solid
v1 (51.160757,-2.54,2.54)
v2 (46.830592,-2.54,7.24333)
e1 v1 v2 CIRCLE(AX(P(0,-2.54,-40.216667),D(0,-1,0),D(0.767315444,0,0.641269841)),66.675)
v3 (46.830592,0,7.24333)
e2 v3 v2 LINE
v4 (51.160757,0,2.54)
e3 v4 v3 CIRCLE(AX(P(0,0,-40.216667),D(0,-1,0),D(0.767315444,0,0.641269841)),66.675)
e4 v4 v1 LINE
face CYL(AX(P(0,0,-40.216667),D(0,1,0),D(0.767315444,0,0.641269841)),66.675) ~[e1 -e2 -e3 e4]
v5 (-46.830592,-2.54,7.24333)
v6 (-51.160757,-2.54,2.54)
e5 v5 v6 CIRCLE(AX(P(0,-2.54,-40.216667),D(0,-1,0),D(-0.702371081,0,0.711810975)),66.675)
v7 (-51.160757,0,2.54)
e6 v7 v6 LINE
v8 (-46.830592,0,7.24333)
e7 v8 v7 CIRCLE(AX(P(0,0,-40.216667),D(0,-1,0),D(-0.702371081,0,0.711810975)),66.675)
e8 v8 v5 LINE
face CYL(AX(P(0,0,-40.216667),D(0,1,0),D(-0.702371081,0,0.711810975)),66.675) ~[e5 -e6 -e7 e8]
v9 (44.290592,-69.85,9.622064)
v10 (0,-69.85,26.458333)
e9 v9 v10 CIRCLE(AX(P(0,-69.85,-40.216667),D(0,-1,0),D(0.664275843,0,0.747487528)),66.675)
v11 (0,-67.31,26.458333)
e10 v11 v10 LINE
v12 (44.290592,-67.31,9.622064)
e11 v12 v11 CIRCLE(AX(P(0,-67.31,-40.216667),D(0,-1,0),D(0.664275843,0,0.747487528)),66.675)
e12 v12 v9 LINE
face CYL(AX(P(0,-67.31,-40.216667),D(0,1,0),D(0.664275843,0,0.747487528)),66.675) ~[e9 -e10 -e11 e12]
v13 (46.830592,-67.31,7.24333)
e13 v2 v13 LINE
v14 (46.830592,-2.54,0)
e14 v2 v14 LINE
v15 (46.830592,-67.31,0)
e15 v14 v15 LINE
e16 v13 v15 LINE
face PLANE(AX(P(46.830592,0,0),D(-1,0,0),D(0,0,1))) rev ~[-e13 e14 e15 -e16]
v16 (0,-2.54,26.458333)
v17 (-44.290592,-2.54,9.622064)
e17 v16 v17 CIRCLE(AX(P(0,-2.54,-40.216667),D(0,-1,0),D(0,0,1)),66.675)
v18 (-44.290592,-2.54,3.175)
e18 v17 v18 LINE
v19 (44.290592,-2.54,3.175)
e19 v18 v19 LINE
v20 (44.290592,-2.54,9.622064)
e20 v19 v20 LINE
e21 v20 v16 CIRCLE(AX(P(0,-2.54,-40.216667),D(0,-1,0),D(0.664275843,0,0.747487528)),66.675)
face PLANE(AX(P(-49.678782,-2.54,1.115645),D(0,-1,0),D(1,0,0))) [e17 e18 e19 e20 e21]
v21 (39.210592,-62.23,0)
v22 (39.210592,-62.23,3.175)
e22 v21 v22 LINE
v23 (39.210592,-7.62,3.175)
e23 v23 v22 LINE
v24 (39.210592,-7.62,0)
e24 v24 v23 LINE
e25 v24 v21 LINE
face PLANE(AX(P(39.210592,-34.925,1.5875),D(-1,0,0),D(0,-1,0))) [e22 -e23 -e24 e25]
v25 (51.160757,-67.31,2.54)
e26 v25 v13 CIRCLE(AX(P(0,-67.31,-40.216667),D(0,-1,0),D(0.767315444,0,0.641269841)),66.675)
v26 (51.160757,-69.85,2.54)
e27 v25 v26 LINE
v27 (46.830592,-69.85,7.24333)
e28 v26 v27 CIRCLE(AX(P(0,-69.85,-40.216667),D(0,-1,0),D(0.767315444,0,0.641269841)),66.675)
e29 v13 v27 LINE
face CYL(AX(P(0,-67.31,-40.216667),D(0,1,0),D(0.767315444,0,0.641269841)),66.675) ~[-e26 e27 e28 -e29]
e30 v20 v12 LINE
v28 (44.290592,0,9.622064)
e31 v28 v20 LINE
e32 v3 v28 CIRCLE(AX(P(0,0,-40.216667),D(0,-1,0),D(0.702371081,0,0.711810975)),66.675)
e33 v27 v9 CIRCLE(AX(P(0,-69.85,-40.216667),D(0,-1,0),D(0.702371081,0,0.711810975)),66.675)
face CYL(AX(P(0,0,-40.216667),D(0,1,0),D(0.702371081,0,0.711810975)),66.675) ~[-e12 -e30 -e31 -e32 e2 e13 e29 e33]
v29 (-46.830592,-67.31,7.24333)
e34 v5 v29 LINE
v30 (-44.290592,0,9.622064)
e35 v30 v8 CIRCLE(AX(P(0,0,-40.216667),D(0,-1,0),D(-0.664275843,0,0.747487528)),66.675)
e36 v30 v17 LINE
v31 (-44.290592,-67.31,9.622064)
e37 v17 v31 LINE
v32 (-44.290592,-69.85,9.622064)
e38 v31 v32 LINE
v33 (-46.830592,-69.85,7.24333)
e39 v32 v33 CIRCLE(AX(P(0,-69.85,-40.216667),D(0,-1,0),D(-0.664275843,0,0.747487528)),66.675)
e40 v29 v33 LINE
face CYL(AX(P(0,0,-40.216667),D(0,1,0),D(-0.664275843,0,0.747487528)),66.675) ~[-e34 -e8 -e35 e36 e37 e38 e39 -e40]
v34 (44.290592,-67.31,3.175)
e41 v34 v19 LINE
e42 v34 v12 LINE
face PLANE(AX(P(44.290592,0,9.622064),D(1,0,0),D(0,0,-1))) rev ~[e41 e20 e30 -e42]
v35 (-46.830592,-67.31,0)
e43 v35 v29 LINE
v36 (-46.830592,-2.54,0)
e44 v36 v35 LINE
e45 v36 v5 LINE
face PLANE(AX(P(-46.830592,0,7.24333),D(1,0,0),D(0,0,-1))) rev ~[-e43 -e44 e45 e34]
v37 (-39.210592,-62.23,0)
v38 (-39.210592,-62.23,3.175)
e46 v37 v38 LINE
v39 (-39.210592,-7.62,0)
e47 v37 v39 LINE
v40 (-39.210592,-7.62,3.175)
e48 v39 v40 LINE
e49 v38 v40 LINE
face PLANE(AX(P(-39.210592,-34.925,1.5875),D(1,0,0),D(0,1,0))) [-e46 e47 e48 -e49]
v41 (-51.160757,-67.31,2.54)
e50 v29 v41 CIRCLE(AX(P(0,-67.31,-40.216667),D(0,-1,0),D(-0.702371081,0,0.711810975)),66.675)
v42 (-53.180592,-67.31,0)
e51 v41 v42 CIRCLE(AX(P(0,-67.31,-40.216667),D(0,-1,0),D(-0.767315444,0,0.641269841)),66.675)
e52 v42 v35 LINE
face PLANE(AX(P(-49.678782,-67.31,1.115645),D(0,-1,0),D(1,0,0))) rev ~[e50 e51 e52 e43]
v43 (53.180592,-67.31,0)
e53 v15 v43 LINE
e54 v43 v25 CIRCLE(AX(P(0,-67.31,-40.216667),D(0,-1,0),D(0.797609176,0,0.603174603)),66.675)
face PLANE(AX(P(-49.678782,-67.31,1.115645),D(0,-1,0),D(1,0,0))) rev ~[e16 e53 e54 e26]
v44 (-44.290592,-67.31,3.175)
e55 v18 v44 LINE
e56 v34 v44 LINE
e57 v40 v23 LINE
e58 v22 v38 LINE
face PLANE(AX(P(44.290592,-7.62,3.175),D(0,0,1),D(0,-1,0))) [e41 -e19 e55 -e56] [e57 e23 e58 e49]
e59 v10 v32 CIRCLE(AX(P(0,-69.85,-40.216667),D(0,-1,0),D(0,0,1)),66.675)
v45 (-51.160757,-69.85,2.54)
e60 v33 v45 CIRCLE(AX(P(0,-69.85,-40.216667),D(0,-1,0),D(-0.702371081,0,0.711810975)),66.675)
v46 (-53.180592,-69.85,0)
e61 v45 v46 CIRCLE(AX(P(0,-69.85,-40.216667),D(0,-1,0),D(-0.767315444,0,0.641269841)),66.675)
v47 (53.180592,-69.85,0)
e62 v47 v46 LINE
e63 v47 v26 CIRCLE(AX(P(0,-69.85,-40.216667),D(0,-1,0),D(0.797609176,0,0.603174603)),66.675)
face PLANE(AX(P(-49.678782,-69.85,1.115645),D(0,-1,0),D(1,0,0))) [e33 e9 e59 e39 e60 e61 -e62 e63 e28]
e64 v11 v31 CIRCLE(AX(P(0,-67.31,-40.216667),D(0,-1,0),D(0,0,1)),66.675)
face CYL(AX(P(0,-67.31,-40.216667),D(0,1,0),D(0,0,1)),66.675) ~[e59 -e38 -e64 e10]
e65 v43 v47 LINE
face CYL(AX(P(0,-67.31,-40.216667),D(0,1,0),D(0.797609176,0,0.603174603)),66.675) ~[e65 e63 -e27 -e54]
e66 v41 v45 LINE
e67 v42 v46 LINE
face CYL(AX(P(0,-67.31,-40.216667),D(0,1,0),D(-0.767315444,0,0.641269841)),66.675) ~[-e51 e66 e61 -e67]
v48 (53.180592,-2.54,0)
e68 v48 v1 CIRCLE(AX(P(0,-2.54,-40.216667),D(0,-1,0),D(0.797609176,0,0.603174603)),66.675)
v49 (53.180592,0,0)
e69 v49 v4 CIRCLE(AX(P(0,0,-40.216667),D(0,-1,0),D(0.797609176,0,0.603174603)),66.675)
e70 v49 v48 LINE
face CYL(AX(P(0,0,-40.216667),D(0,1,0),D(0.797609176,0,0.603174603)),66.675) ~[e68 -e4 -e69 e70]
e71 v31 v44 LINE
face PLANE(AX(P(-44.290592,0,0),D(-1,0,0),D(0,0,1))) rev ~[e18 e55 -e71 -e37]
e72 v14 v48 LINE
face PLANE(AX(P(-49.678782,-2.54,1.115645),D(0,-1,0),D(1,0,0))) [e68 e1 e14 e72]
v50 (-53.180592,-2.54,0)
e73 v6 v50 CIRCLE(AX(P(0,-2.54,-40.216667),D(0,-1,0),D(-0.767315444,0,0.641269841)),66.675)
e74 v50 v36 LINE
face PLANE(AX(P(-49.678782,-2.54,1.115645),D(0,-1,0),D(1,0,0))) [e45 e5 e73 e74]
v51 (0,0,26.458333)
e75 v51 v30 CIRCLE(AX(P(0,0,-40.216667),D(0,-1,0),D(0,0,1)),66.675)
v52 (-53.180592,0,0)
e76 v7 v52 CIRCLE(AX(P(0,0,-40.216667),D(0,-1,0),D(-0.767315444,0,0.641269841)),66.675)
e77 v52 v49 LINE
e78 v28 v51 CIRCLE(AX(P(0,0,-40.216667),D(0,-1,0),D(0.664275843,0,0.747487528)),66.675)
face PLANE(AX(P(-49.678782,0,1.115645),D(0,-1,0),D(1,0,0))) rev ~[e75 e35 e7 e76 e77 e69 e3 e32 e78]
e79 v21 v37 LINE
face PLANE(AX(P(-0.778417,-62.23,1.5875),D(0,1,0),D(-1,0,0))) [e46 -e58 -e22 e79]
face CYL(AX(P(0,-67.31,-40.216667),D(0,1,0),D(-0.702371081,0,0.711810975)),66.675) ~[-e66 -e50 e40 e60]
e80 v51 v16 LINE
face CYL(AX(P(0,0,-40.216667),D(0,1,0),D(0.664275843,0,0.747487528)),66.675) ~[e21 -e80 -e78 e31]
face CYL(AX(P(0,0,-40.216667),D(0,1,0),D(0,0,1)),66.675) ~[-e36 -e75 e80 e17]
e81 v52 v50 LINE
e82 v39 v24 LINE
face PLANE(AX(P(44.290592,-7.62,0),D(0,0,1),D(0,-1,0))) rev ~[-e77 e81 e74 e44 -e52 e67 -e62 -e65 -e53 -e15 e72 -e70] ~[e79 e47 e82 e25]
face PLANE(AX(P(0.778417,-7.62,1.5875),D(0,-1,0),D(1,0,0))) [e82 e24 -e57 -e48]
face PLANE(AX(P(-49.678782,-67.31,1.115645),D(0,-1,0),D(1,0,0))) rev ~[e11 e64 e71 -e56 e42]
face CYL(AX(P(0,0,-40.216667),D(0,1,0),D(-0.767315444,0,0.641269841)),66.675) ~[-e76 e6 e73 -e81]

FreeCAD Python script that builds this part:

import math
import FreeCAD as App
import Part
import Sketcher
from FreeCAD import Vector
Q = App.Units.Quantity

doc = App.newDocument("Part")
params = doc.addObject("Spreadsheet::Sheet", "Params")
for row, (alias, value) in enumerate([
    ("sketch1_radius", "2.625 in"),
    ("pad1_length", "0.1 in"),
    ("sketch2_radius", "2.625 in"),
    ("pad2_length", "0.1 in"),
    ("sketch3_width", "0.1 in"),
    ("sketch3_radius", "2.625 in"),
    ("pad3_length", "2.75 in"),
    ("sketch4_height", "0.125 in"),
    ("pad4_length", "0.2 in"),
    ("sketch5_height", "0.125 in"),
    ("pad5_length", "0.2 in"),
    ("sketch6_width", "2.15 in"),
    ("sketch6_height", "0.125 in"),
    ("pad6_length", "0.2 in"),
    ("sketch7_width", "2.15 in"),
    ("sketch7_height", "0.125 in"),
    ("pad7_length", "0.2 in"),
], start=1):
    params.set(f"A{row}", alias)
    params.set(f"B{row}", "=" + value)
    params.setAlias(f"B{row}", alias)

body = doc.addObject("PartDesign::Body", "Body")

# Sketch on XZ plane
sketch1 = body.newObject("Sketcher::SketchObject", "Sketch")
sketch1.AttachmentSupport = (doc.getObject("XZ_Plane"), [""])
sketch1.MapMode = "FlatFace"
sketch1.addGeometry([
    Part.LineSegment(Vector(-53.180592, 0, 0), Vector(53.180592, 0, 0)),  # 0
    Part.ArcOfCircle(Part.Circle(Vector(0, -40.216667, 0), Vector(0, 0, 1), 66.675), math.radians(37.097602), math.radians(39.886574)),  # 1
    Part.ArcOfCircle(Part.Circle(Vector(0, -40.216667, 0), Vector(0, 0, 1), 66.675), math.radians(39.886574), math.radians(45.382453)),  # 2
    Part.ArcOfCircle(Part.Circle(Vector(0, -40.216667, 0), Vector(0, 0, 1), 66.675), math.radians(45.382453), math.radians(48.373206)),  # 3
    Part.ArcOfCircle(Part.Circle(Vector(0, -40.216667, 0), Vector(0, 0, 1), 66.675), math.radians(48.373206), math.radians(90)),  # 4
    Part.ArcOfCircle(Part.Circle(Vector(0, -40.216667, 0), Vector(0, 0, 1), 66.675), math.radians(90), math.radians(131.626794)),  # 5
    Part.ArcOfCircle(Part.Circle(Vector(0, -40.216667, 0), Vector(0, 0, 1), 66.675), math.radians(131.626794), math.radians(134.617547)),  # 6
    Part.ArcOfCircle(Part.Circle(Vector(0, -40.216667, 0), Vector(0, 0, 1), 66.675), math.radians(134.617547), math.radians(140.113426)),  # 7
    Part.ArcOfCircle(Part.Circle(Vector(0, -40.216667, 0), Vector(0, 0, 1), 66.675), math.radians(140.113426), math.radians(142.902398)),  # 8
], False)
sketch1.addConstraint([
    Sketcher.Constraint("Coincident", 0, 2, 1, 1),
    Sketcher.Constraint("Tangent", 1, 2, 2, 1),
    Sketcher.Constraint("Tangent", 2, 2, 3, 1),
    Sketcher.Constraint("Tangent", 3, 2, 4, 1),
    Sketcher.Constraint("Tangent", 4, 2, 5, 1),
    Sketcher.Constraint("Tangent", 5, 2, 6, 1),
    Sketcher.Constraint("Tangent", 6, 2, 7, 1),
    Sketcher.Constraint("Tangent", 7, 2, 8, 1),
    Sketcher.Constraint("Coincident", 8, 2, 0, 1),
    Sketcher.Constraint("Horizontal", 0),
    Sketcher.Constraint("Coincident", 3, 3, 1, 3),
    Sketcher.Constraint("Coincident", 5, 3, 1, 3),
    Sketcher.Constraint("Coincident", 7, 3, 1, 3),
    Sketcher.Constraint("Equal", 7, 8),
    Sketcher.Constraint("Symmetric", 0, 2, 8, 2, -1, 1),
    Sketcher.Constraint("PointOnObject", 4, 2, -2),
    Sketcher.Constraint("Horizontal", 3, 2, 5, 2),
    Sketcher.Constraint("Horizontal", 2, 2, 6, 2),
    Sketcher.Constraint("Horizontal", 1, 2, 7, 2),
    Sketcher.Constraint("Radius", 1, Q("2.625 in")),
    Sketcher.Constraint("DistanceY", -1, 1, 1, 2, Q("0.1 in")),
    Sketcher.Constraint("DistanceX", 3, 2, 2, 2, Q("0.1 in")),
    Sketcher.Constraint("DistanceX", 2, 2, 0, 2, Q("0.25 in")),
    Sketcher.Constraint("DistanceX", 0, 1, 0, 2, 106.361184),
])
sketch1.setExpression("Constraints[19]", "Params.sketch1_radius")
pad1 = body.newObject("PartDesign::Pad", "Pad")
pad1.Profile = sketch1
pad1.setExpression("Length", "Params.pad1_length")
body2 = doc.addObject("PartDesign::Body", "Body001")

# Sketch on XZ plane
sketch2 = body2.newObject("Sketcher::SketchObject", "Sketch001")
sketch2.AttachmentSupport = (doc.getObject("XZ_Plane001"), [""])
sketch2.MapMode = "FlatFace"
sketch2.AttachmentOffset = App.Placement(Vector(0, 0, 2.65 * 25.4), App.Rotation())
sketch2.addGeometry([
    Part.LineSegment(Vector(-53.180592, 0, 0), Vector(53.180592, 0, 0)),  # 0
    Part.ArcOfCircle(Part.Circle(Vector(0, -40.216667, 0), Vector(0, 0, 1), 66.675), math.radians(37.097602), math.radians(39.886574)),  # 1
    Part.ArcOfCircle(Part.Circle(Vector(0, -40.216667, 0), Vector(0, 0, 1), 66.675), math.radians(39.886574), math.radians(45.382453)),  # 2
    Part.ArcOfCircle(Part.Circle(Vector(0, -40.216667, 0), Vector(0, 0, 1), 66.675), math.radians(45.382453), math.radians(48.373206)),  # 3
    Part.ArcOfCircle(Part.Circle(Vector(0, -40.216667, 0), Vector(0, 0, 1), 66.675), math.radians(48.373206), math.radians(90)),  # 4
    Part.ArcOfCircle(Part.Circle(Vector(0, -40.216667, 0), Vector(0, 0, 1), 66.675), math.radians(90), math.radians(131.626794)),  # 5
    Part.ArcOfCircle(Part.Circle(Vector(0, -40.216667, 0), Vector(0, 0, 1), 66.675), math.radians(131.626794), math.radians(134.617547)),  # 6
    Part.ArcOfCircle(Part.Circle(Vector(0, -40.216667, 0), Vector(0, 0, 1), 66.675), math.radians(134.617547), math.radians(140.113426)),  # 7
    Part.ArcOfCircle(Part.Circle(Vector(0, -40.216667, 0), Vector(0, 0, 1), 66.675), math.radians(140.113426), math.radians(142.902398)),  # 8
], False)
sketch2.addConstraint([
    Sketcher.Constraint("Coincident", 0, 2, 1, 1),
    Sketcher.Constraint("Tangent", 1, 2, 2, 1),
    Sketcher.Constraint("Tangent", 2, 2, 3, 1),
    Sketcher.Constraint("Tangent", 3, 2, 4, 1),
    Sketcher.Constraint("Tangent", 4, 2, 5, 1),
    Sketcher.Constraint("Tangent", 5, 2, 6, 1),
    Sketcher.Constraint("Tangent", 6, 2, 7, 1),
    Sketcher.Constraint("Tangent", 7, 2, 8, 1),
    Sketcher.Constraint("Coincident", 8, 2, 0, 1),
    Sketcher.Constraint("Horizontal", 0),
    Sketcher.Constraint("Coincident", 3, 3, 1, 3),
    Sketcher.Constraint("Coincident", 5, 3, 1, 3),
    Sketcher.Constraint("Coincident", 7, 3, 1, 3),
    Sketcher.Constraint("Equal", 7, 8),
    Sketcher.Constraint("Symmetric", 0, 2, 8, 2, -1, 1),
    Sketcher.Constraint("PointOnObject", 4, 2, -2),
    Sketcher.Constraint("Horizontal", 3, 2, 5, 2),
    Sketcher.Constraint("Horizontal", 2, 2, 6, 2),
    Sketcher.Constraint("Horizontal", 1, 2, 7, 2),
    Sketcher.Constraint("Radius", 1, Q("2.625 in")),
    Sketcher.Constraint("DistanceY", -1, 1, 1, 2, Q("0.1 in")),
    Sketcher.Constraint("DistanceX", 3, 2, 2, 2, Q("0.1 in")),
    Sketcher.Constraint("DistanceX", 2, 2, 0, 2, Q("0.25 in")),
    Sketcher.Constraint("DistanceX", 0, 1, 0, 2, 106.361184),
])
sketch2.setExpression("Constraints[19]", "Params.sketch2_radius")
pad2 = body2.newObject("PartDesign::Pad", "Pad001")
pad2.Profile = sketch2
pad2.setExpression("Length", "Params.pad2_length")
body.AllowCompound = True
doc.recompute()

boolean = body.newObject("PartDesign::Boolean", "Boolean")
boolean.Type = "Fuse"
boolean.addObjects([body2])

# Sketch on XZ plane
sketch3 = body.newObject("Sketcher::SketchObject", "Sketch002")
sketch3.AttachmentSupport = (doc.getObject("XZ_Plane"), [""])
sketch3.MapMode = "FlatFace"
sketch3.addGeometry([
    Part.LineSegment(Vector(-46.830592, 0, 0), Vector(-44.290592, 0, 0)),  # 0
    Part.LineSegment(Vector(-44.290592, 0, 0), Vector(-44.290592, 9.622064, 0)),  # 1
    Part.ArcOfCircle(Part.Circle(Vector(0, -40.216667, 0), Vector(0, 0, 1), 66.675), math.radians(131.626794), math.radians(134.617547)),  # 2
    Part.LineSegment(Vector(-46.830592, 7.24333, 0), Vector(-46.830592, 0, 0)),  # 3
    Part.LineSegment(Vector(44.290592, 0, 0), Vector(46.830592, 0, 0)),  # 4
    Part.LineSegment(Vector(46.830592, 0, 0), Vector(46.830592, 7.24333, 0)),  # 5
    Part.ArcOfCircle(Part.Circle(Vector(0, -40.216667, 0), Vector(0, 0, 1), 66.675), math.radians(45.382453), math.radians(48.373206)),  # 6
    Part.LineSegment(Vector(44.290592, 9.622064, 0), Vector(44.290592, 0, 0)),  # 7
], False)
sketch3.addConstraint([
    Sketcher.Constraint("Coincident", 0, 2, 1, 1),
    Sketcher.Constraint("Coincident", 1, 2, 2, 1),
    Sketcher.Constraint("Coincident", 2, 2, 3, 1),
    Sketcher.Constraint("Coincident", 3, 2, 0, 1),
    Sketcher.Constraint("Coincident", 4, 2, 5, 1),
    Sketcher.Constraint("Coincident", 5, 2, 6, 1),
    Sketcher.Constraint("Coincident", 6, 2, 7, 1),
    Sketcher.Constraint("Coincident", 7, 2, 4, 1),
    Sketcher.Constraint("Horizontal", 0),
    Sketcher.Constraint("Vertical", 1),
    Sketcher.Constraint("Vertical", 3),
    Sketcher.Constraint("Horizontal", 4),
    Sketcher.Constraint("Vertical", 5),
    Sketcher.Constraint("Vertical", 7),
    Sketcher.Constraint("Coincident", 6, 3, 2, 3),
    Sketcher.Constraint("Equal", 2, 6),
    Sketcher.Constraint("Symmetric", 3, 2, 4, 2, -1, 1),
    Sketcher.Constraint("Symmetric", 1, 2, 6, 2, -2),
    Sketcher.Constraint("PointOnObject", 0, 2, -1),
    Sketcher.Constraint("DistanceX", 0, 1, 0, 2, Q("0.1 in")),
    Sketcher.Constraint("Radius", 2, Q("2.625 in")),
    Sketcher.Constraint("DistanceY", 3, 2, 3, 1, 7.24333),
    Sketcher.Constraint("DistanceY", 1, 1, 1, 2, 9.622064),
])
sketch3.setExpression("Constraints[19]", "Params.sketch3_width")
sketch3.setExpression("Constraints[20]", "Params.sketch3_radius")
pad3 = body.newObject("PartDesign::Pad", "Pad002")
pad3.Profile = sketch3
pad3.setExpression("Length", "Params.pad3_length")

# Sketch on XZ plane
sketch4 = body.newObject("Sketcher::SketchObject", "Sketch003")
sketch4.AttachmentSupport = (doc.getObject("XZ_Plane"), [""])
sketch4.MapMode = "FlatFace"
sketch4.AttachmentOffset = App.Placement(Vector(0, 0, 0.1 * 25.4), App.Rotation())
sketch4.addGeometry([
    Part.LineSegment(Vector(-44.290592, 3.175, 0), Vector(-44.290592, 0, 0)),
    Part.LineSegment(Vector(-44.290592, 0, 0), Vector(45.847426, 0, 0)),
    Part.LineSegment(Vector(45.847426, 0, 0), Vector(45.847426, 3.175, 0)),
    Part.LineSegment(Vector(45.847426, 3.175, 0), Vector(-44.290592, 3.175, 0)),
], False)
sketch4.addConstraint([
    Sketcher.Constraint("Coincident", 0, 2, 1, 1),
    Sketcher.Constraint("Coincident", 1, 2, 2, 1),
    Sketcher.Constraint("Coincident", 2, 2, 3, 1),
    Sketcher.Constraint("Coincident", 3, 2, 0, 1),
    Sketcher.Constraint("Vertical", 0),
    Sketcher.Constraint("Horizontal", 1),
    Sketcher.Constraint("Vertical", 2),
    Sketcher.Constraint("Horizontal", 3),
    Sketcher.Constraint("PointOnObject", 0, 2, -1),
    Sketcher.Constraint("DistanceY", 0, 2, 0, 1, Q("0.125 in")),
    Sketcher.Constraint("DistanceX", 1, 1, 1, 2, 90.138017),
    Sketcher.Constraint("DistanceX", 0, 2, -1, 1, 44.290592),
])
sketch4.setExpression("Constraints[9]", "Params.sketch4_height")
pad4 = body.newObject("PartDesign::Pad", "Pad003")
pad4.Profile = sketch4
pad4.setExpression("Length", "Params.pad4_length")

# Sketch on XZ plane
sketch5 = body.newObject("Sketcher::SketchObject", "Sketch004")
sketch5.AttachmentSupport = (doc.getObject("XZ_Plane"), [""])
sketch5.MapMode = "FlatFace"
sketch5.AttachmentOffset = App.Placement(Vector(0, 0, 2.65 * 25.4), App.Rotation())
sketch5.addGeometry([
    Part.LineSegment(Vector(44.290592, 3.175, 0), Vector(44.290592, 0, 0)),
    Part.LineSegment(Vector(44.290592, 0, 0), Vector(-45.847426, 0, 0)),
    Part.LineSegment(Vector(-45.847426, 0, 0), Vector(-45.847426, 3.175, 0)),
    Part.LineSegment(Vector(-45.847426, 3.175, 0), Vector(44.290592, 3.175, 0)),
], False)
sketch5.addConstraint([
    Sketcher.Constraint("Coincident", 0, 2, 1, 1),
    Sketcher.Constraint("Coincident", 1, 2, 2, 1),
    Sketcher.Constraint("Coincident", 2, 2, 3, 1),
    Sketcher.Constraint("Coincident", 3, 2, 0, 1),
    Sketcher.Constraint("Vertical", 0),
    Sketcher.Constraint("Horizontal", 1),
    Sketcher.Constraint("Vertical", 2),
    Sketcher.Constraint("Horizontal", 3),
    Sketcher.Constraint("PointOnObject", 0, 2, -1),
    Sketcher.Constraint("DistanceY", 0, 2, 0, 1, Q("0.125 in")),
    Sketcher.Constraint("DistanceX", 1, 2, 1, 1, 90.138017),
    Sketcher.Constraint("DistanceX", -1, 1, 0, 2, 44.290592),
])
sketch5.setExpression("Constraints[9]", "Params.sketch5_height")
pad5 = body.newObject("PartDesign::Pad", "Pad004")
pad5.Profile = sketch5
pad5.setExpression("Length", "Params.pad5_length")
pad5.Reversed = True

# Sketch on YZ plane
sketch6 = body.newObject("Sketcher::SketchObject", "Sketch005")
sketch6.AttachmentSupport = (doc.getObject("YZ_Plane"), [""])
sketch6.MapMode = "FlatFace"
sketch6.AttachmentOffset = App.Placement(Vector(0, 0, -44.290592), App.Rotation())
sketch6.addGeometry([
    Part.LineSegment(Vector(-62.23, 3.175, 0), Vector(-62.23, 0, 0)),
    Part.LineSegment(Vector(-62.23, 0, 0), Vector(-7.62, 0, 0)),
    Part.LineSegment(Vector(-7.62, 0, 0), Vector(-7.62, 3.175, 0)),
    Part.LineSegment(Vector(-7.62, 3.175, 0), Vector(-62.23, 3.175, 0)),
], False)
sketch6.addConstraint([
    Sketcher.Constraint("Coincident", 0, 2, 1, 1),
    Sketcher.Constraint("Coincident", 1, 2, 2, 1),
    Sketcher.Constraint("Coincident", 2, 2, 3, 1),
    Sketcher.Constraint("Coincident", 3, 2, 0, 1),
    Sketcher.Constraint("Vertical", 0),
    Sketcher.Constraint("Horizontal", 1),
    Sketcher.Constraint("Vertical", 2),
    Sketcher.Constraint("Horizontal", 3),
    Sketcher.Constraint("PointOnObject", 0, 2, -1),
    Sketcher.Constraint("DistanceX", 1, 1, 1, 2, Q("2.15 in")),
    Sketcher.Constraint("DistanceX", 1, 2, -1, 1, Q("0.3 in")),
    Sketcher.Constraint("DistanceY", 0, 2, 0, 1, Q("0.125 in")),
])
sketch6.setExpression("Constraints[9]", "Params.sketch6_width")
sketch6.setExpression("Constraints[11]", "Params.sketch6_height")
pad6 = body.newObject("PartDesign::Pad", "Pad005")
pad6.Profile = sketch6
pad6.setExpression("Length", "Params.pad6_length")

# Sketch on YZ plane
sketch7 = body.newObject("Sketcher::SketchObject", "Sketch006")
sketch7.AttachmentSupport = (doc.getObject("YZ_Plane"), [""])
sketch7.MapMode = "FlatFace"
sketch7.AttachmentOffset = App.Placement(Vector(0, 0, 44.290592), App.Rotation())
sketch7.addGeometry([
    Part.LineSegment(Vector(-7.62, 3.175, 0), Vector(-7.62, 0, 0)),
    Part.LineSegment(Vector(-7.62, 0, 0), Vector(-62.23, 0, 0)),
    Part.LineSegment(Vector(-62.23, 0, 0), Vector(-62.23, 3.175, 0)),
    Part.LineSegment(Vector(-62.23, 3.175, 0), Vector(-7.62, 3.175, 0)),
], False)
sketch7.addConstraint([
    Sketcher.Constraint("Coincident", 0, 2, 1, 1),
    Sketcher.Constraint("Coincident", 1, 2, 2, 1),
    Sketcher.Constraint("Coincident", 2, 2, 3, 1),
    Sketcher.Constraint("Coincident", 3, 2, 0, 1),
    Sketcher.Constraint("Vertical", 0),
    Sketcher.Constraint("Horizontal", 1),
    Sketcher.Constraint("Vertical", 2),
    Sketcher.Constraint("Horizontal", 3),
    Sketcher.Constraint("PointOnObject", 0, 2, -1),
    Sketcher.Constraint("DistanceX", 1, 2, 1, 1, Q("2.15 in")),
    Sketcher.Constraint("DistanceX", 0, 2, -1, 1, Q("0.3 in")),
    Sketcher.Constraint("DistanceY", 0, 2, 0, 1, Q("0.125 in")),
])
sketch7.setExpression("Constraints[9]", "Params.sketch7_width")
sketch7.setExpression("Constraints[11]", "Params.sketch7_height")
pad7 = body.newObject("PartDesign::Pad", "Pad006")
pad7.Profile = sketch7
pad7.setExpression("Length", "Params.pad7_length")
pad7.Reversed = True

doc.recompute()
